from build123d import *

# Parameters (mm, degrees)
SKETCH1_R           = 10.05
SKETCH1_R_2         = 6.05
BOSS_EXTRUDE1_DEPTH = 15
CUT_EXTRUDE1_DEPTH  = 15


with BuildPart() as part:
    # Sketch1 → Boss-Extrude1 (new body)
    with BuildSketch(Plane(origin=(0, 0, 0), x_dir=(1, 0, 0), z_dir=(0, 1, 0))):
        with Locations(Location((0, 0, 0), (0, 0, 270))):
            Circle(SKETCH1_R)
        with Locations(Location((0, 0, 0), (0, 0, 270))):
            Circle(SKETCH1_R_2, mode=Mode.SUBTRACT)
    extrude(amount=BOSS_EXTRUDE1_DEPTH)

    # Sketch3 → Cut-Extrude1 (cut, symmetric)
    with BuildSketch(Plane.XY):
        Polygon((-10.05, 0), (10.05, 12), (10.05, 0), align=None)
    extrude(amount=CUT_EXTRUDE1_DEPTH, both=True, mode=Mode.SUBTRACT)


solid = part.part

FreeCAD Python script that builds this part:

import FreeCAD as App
import Part
import Sketcher

V = App.Vector


def add_polygon(sketch, points):
    """Adds a closed chain of lines whose ends are joined by coincident constraints."""
    first, n = sketch.GeometryCount, len(points)
    for a, b in zip(points, points[1:] + points[:1]):
        sketch.addGeometry(Part.LineSegment(App.Vector(*a, 0), App.Vector(*b, 0)), False)
    for i in range(n):
        sketch.addConstraint(Sketcher.Constraint("Coincident", first + i, 2, first + (i + 1) % n, 1))

doc = App.newDocument("Part")
body = doc.addObject("PartDesign::Body", "Body")

sketch1 = body.newObject("Sketcher::SketchObject", "Sketch")
sketch1.AttachmentSupport = (doc.getObject("XZ_Plane"), [""])
sketch1.MapMode = "FlatFace"
sketch1.addGeometry(Part.Circle(V(0, 0, 0), V(0, 0, 1), 10), False)
sketch1.addGeometry(Part.Circle(V(0, 0, 0), V(0, 0, 1), 6), False)
sketch1.addConstraint(Sketcher.Constraint("Coincident", 0, 3, -1, 1))
sketch1.addConstraint(Sketcher.Constraint("Coincident", 1, 3, -1, 1))
sketch1.addConstraint(Sketcher.Constraint("Diameter", 0, 20.1))
sketch1.addConstraint(Sketcher.Constraint("Diameter", 1, 12.1))
pad1 = body.newObject("PartDesign::Pad", "Pad")
pad1.Profile = sketch1
pad1.Length = 15
pad1.Reversed = True

sketch2 = body.newObject("Sketcher::SketchObject", "Sketch001")
sketch2.AttachmentSupport = (doc.getObject("XY_Plane"), [""])
sketch2.MapMode = "FlatFace"
add_polygon(sketch2, [(10, 12), (-10, 0), (10, 0)])
sketch2.addConstraint(Sketcher.Constraint("Horizontal", 1))
sketch2.addConstraint(Sketcher.Constraint("Vertical", 2))
sketch2.addConstraint(Sketcher.Constraint("Symmetric", 0, 2, 1, 2, -1, 1))
sketch2.addConstraint(Sketcher.Constraint("DistanceY", 2, 1, 2, 2, 12.0))
sketch2.addConstraint(Sketcher.Constraint("DistanceX", 1, 1, 1, 2, 20.1))
pocket1 = body.newObject("PartDesign::Pocket", "Pocket")
pocket1.Profile = sketch2
pocket1.Length = 30
pocket1.Midplane = True

doc.recompute()
